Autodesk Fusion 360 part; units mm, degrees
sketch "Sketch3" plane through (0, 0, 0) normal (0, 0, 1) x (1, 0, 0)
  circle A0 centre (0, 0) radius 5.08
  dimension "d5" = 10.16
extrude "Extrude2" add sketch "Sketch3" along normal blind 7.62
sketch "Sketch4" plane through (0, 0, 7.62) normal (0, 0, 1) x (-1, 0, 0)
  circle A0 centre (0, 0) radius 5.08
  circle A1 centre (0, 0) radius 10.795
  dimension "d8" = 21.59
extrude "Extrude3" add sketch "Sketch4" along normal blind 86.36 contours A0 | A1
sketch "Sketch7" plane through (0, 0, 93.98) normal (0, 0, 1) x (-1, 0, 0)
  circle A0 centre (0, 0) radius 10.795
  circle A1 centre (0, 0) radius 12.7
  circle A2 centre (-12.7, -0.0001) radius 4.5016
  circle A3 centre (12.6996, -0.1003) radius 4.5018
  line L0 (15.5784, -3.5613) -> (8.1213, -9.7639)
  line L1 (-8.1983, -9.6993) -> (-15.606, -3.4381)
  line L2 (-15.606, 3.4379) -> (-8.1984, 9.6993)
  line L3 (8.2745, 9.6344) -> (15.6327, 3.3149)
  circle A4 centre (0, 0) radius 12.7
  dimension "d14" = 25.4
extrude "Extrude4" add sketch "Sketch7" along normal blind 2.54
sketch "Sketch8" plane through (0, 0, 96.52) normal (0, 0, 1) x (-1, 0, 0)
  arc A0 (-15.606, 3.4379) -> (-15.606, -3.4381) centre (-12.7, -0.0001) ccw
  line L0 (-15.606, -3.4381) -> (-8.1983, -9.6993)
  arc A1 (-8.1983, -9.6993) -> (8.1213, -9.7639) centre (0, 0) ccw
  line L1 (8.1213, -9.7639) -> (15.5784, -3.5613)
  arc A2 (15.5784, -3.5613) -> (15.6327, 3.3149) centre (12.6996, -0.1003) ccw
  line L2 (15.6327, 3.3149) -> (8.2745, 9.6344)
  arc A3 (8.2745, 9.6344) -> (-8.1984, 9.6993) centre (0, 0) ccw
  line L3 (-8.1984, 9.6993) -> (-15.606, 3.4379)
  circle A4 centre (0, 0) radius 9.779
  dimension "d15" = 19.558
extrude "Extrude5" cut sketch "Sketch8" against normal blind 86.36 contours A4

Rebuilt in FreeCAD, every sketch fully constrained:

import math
import FreeCAD as App
import Part
import Sketcher
Q = App.Units.Quantity

doc = App.newDocument("Part")
body = doc.addObject("PartDesign::Body", "Body")

# Sketch on XY plane
sketch1 = body.newObject("Sketcher::SketchObject", "Sketch")
sketch1.AttachmentSupport = (doc.getObject("XY_Plane"), [""])
sketch1.MapMode = "FlatFace"
sketch1.addGeometry(Part.Circle(App.Vector(0, 0, 0), App.Vector(0, 0, 1), 5), False)
sketch1.addConstraint([
    Sketcher.Constraint("Coincident", 0, 3, -1, 1),
    Sketcher.Constraint("Diameter", 0, Q("0.4 in")),
])
pad1 = body.newObject("PartDesign::Pad", "Pad")
pad1.Profile = sketch1
pad1.Length = Q("0.3 in")

# Sketch on XY plane
sketch2 = body.newObject("Sketcher::SketchObject", "Sketch001")
sketch2.AttachmentSupport = (doc.getObject("XY_Plane"), [""])
sketch2.MapMode = "FlatFace"
sketch2.AttachmentOffset = App.Placement(App.Vector(0, 0, 0.3 * 25.4), App.Rotation())
sketch2.addGeometry(Part.Circle(App.Vector(0, 0, 0), App.Vector(0, 0, 1), 11), False)
sketch2.addConstraint([
    Sketcher.Constraint("Coincident", 0, 3, -1, 1),
    Sketcher.Constraint("Diameter", 0, Q("0.85 in")),
])
pad2 = body.newObject("PartDesign::Pad", "Pad001")
pad2.Profile = sketch2
pad2.Length = Q("3.4 in")

# Sketch on XY plane
sketch3 = body.newObject("Sketcher::SketchObject", "Sketch002")
sketch3.AttachmentSupport = (doc.getObject("XY_Plane"), [""])
sketch3.MapMode = "FlatFace"
sketch3.AttachmentOffset = App.Placement(App.Vector(0, 0, 3.7 * 25.4), App.Rotation())
sketch3.addGeometry([
    Part.ArcOfCircle(Part.Circle(App.Vector(0, 0, 0), App.Vector(0, 0, 1), 12.7), math.radians(49.793949), math.radians(129.752602)),  # 0
    Part.LineSegment(App.Vector(-8.1213, 9.7639, 0), App.Vector(-15.5784, 3.5613, 0)),  # 1
    Part.ArcOfCircle(Part.Circle(App.Vector(-12.6996, 0.1003, 0), App.Vector(0, 0, 1), 4.5018), math.radians(129.753099), math.radians(229.342797)),  # 2
    Part.LineSegment(App.Vector(-15.6327, -3.3149, 0), App.Vector(-8.2745, -9.6344, 0)),  # 3
    Part.ArcOfCircle(Part.Circle(App.Vector(0, 0, 0), App.Vector(0, 0, 1), 12.7), math.radians(-130.657618), math.radians(-49.793604)),  # 4
    Part.LineSegment(App.Vector(8.1984, -9.6993, 0), App.Vector(15.606, -3.4379, 0)),  # 5
    Part.ArcOfCircle(Part.Circle(App.Vector(12.7, 0.0001, 0), App.Vector(0, 0, 1), 4.5016), math.radians(-49.793538), math.radians(49.793538)),  # 6
    Part.LineSegment(App.Vector(15.606, 3.4381, 0), App.Vector(8.1983, 9.6993, 0)),  # 7
], False)
sketch3.addConstraint([
    Sketcher.Constraint("Coincident", 0, 2, 1, 1),
    Sketcher.Constraint("Coincident", 1, 2, 2, 1),
    Sketcher.Constraint("Coincident", 2, 2, 3, 1),
    Sketcher.Constraint("Coincident", 3, 2, 4, 1),
    Sketcher.Constraint("Coincident", 4, 2, 5, 1),
    Sketcher.Constraint("Coincident", 5, 2, 6, 1),
    Sketcher.Constraint("Coincident", 6, 2, 7, 1),
    Sketcher.Constraint("Coincident", 7, 2, 0, 1),
    Sketcher.Constraint("Coincident", 0, 3, -1, 1),
    Sketcher.Constraint("Coincident", 4, 3, -1, 1),
    Sketcher.Constraint("PointOnObject", 6, 3, -1),
    Sketcher.Constraint("Radius", 0, Q("0.5 in")),
    Sketcher.Constraint("Radius", 4, Q("0.5 in")),
    Sketcher.Constraint("DistanceX", -1, 1, 6, 3, Q("0.5 in")),
    Sketcher.Constraint("Radius", 2, 4.5018),
    Sketcher.Constraint("Radius", 6, 4.5016),
    Sketcher.Constraint("DistanceX", 2, 3, 6, 3, 25.3996),
    Sketcher.Constraint("DistanceY", -1, 1, 0, 2, Q("0.3844 in")),
    Sketcher.Constraint("DistanceY", -1, 1, 1, 2, Q("0.1402 in")),
    Sketcher.Constraint("DistanceY", 2, 2, -1, 1, Q("0.1305 in")),
    Sketcher.Constraint("DistanceY", 3, 2, -1, 1, Q("0.3793 in")),
    Sketcher.Constraint("DistanceX", -1, 1, 5, 2, Q("0.6144 in")),
    Sketcher.Constraint("DistanceX", -1, 1, 6, 2, Q("0.6144 in")),
    Sketcher.Constraint("DistanceX", 2, 2, 3, 2, Q("0.2897 in")),
    Sketcher.Constraint("DistanceY", 4, 2, 2, 3, Q("0.3858 in")),
    Sketcher.Constraint("DistanceY", 6, 2, 7, 2, Q("0.2465 in")),
])
pad3 = body.newObject("PartDesign::Pad", "Pad002")
pad3.Profile = sketch3
pad3.Length = Q("0.1 in")

# Sketch on XY plane
sketch4 = body.newObject("Sketcher::SketchObject", "Sketch003")
sketch4.AttachmentSupport = (doc.getObject("XY_Plane"), [""])
sketch4.MapMode = "FlatFace"
sketch4.AttachmentOffset = App.Placement(App.Vector(0, 0, 3.8 * 25.4), App.Rotation())
sketch4.addGeometry(Part.Circle(App.Vector(0, 0, 0), App.Vector(0, 0, 1), 10), False)
sketch4.addConstraint([
    Sketcher.Constraint("Coincident", 0, 3, -1, 1),
    Sketcher.Constraint("Diameter", 0, Q("0.77 in")),
])
pocket1 = body.newObject("PartDesign::Pocket", "Pocket")
pocket1.Profile = sketch4
pocket1.Length = Q("3.4 in")

doc.recompute()
